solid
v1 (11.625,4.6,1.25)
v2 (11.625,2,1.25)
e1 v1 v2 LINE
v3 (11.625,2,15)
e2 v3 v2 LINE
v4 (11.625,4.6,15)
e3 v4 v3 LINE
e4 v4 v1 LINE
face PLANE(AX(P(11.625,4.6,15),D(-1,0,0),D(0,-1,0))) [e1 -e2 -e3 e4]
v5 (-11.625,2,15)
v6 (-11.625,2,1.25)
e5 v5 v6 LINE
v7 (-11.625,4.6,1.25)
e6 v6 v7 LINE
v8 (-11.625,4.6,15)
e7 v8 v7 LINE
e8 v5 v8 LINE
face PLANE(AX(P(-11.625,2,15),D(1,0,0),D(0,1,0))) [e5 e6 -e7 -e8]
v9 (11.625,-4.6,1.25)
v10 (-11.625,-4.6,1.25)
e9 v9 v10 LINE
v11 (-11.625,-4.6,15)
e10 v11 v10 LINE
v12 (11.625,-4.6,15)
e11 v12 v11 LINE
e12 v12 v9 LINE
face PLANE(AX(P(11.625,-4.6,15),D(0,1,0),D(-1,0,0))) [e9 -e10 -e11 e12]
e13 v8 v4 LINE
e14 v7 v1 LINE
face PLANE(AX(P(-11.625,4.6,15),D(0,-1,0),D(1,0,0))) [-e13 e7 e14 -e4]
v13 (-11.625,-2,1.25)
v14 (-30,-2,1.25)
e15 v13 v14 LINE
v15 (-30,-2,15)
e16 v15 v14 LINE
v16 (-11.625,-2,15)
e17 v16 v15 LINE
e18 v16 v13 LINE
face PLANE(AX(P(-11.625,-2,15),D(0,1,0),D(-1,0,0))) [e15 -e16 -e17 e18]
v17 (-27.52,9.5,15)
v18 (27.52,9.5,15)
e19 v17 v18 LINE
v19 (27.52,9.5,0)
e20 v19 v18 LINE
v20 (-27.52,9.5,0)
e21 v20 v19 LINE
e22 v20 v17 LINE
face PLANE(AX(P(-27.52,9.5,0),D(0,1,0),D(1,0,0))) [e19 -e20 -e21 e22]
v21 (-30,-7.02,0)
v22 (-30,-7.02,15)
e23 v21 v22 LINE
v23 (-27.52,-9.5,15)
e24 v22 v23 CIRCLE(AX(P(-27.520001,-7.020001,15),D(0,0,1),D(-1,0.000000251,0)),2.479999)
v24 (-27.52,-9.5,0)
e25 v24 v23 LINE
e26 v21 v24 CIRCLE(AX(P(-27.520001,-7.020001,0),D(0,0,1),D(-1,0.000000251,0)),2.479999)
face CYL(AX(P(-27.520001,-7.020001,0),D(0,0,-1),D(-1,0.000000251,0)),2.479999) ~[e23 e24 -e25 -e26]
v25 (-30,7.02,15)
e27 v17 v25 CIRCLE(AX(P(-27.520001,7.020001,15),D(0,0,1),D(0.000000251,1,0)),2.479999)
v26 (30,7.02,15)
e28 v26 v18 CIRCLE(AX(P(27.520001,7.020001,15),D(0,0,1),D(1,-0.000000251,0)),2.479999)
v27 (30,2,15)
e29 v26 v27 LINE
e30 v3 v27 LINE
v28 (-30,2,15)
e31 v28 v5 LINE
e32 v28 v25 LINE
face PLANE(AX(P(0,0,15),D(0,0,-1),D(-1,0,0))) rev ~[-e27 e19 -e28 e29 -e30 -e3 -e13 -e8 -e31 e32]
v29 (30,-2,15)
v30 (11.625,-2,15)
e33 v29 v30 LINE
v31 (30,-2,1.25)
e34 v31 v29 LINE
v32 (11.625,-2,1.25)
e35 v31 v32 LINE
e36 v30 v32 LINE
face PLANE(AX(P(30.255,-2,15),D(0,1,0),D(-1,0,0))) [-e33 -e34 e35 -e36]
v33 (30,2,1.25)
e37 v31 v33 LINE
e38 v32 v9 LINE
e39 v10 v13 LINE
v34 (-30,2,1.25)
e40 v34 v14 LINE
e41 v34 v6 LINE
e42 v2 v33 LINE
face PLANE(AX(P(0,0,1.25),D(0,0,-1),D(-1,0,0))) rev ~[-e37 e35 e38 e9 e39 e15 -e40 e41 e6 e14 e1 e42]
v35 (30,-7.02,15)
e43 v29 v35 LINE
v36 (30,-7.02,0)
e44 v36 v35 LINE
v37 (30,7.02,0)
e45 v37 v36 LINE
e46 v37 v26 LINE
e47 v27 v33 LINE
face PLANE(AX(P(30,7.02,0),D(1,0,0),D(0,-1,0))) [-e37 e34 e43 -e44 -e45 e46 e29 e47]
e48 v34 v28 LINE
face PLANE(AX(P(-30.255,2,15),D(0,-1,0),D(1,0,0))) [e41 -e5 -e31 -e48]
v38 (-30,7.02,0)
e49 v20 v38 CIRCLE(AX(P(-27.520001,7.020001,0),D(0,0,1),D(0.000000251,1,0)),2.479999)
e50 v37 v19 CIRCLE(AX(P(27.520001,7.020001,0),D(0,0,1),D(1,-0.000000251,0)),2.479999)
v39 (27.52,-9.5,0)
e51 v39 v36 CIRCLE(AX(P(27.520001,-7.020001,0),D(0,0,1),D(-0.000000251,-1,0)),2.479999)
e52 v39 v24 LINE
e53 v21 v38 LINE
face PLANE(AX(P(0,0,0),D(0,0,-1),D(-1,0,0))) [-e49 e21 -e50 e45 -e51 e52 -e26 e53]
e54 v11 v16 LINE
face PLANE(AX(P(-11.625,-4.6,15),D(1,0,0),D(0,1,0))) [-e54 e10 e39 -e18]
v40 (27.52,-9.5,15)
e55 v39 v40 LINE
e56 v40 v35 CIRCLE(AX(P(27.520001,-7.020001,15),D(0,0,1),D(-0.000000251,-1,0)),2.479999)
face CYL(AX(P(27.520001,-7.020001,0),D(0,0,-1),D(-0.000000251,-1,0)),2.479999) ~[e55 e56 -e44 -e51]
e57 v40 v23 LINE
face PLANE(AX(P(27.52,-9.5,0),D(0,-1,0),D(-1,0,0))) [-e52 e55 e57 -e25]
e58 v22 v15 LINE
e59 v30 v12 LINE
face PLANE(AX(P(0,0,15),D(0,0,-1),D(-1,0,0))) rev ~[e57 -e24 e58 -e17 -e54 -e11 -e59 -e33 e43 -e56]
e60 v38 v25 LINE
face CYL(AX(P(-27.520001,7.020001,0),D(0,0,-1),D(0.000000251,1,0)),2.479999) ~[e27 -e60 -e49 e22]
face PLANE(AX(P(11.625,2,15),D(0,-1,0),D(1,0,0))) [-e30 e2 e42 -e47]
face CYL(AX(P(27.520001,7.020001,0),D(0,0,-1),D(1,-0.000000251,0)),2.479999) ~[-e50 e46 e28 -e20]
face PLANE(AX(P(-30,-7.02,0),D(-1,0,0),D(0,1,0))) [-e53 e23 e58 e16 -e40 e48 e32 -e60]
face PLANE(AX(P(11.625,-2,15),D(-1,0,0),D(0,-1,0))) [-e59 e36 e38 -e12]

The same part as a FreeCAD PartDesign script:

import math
import FreeCAD as App
import Part
import Sketcher
Q = App.Units.Quantity

doc = App.newDocument("Part")
params = doc.addObject("Spreadsheet::Sheet", "Params")
for row, (alias, value) in enumerate([
    ("sketch1_radius", "2.479999 mm"),
    ("pad1_length", "15 mm"),
    ("sketch2_height", "4 mm"),
    ("sketch2_height2", "2.6 mm"),
    ("sketch2_width", "18.63 mm"),
    ("sketch2_width2", "23.25 mm"),
    ("pocket1_length", "13.75 mm"),
], start=1):
    params.set(f"A{row}", alias)
    params.set(f"B{row}", "=" + value)
    params.setAlias(f"B{row}", alias)

body = doc.addObject("PartDesign::Body", "Body")

sketch1 = body.newObject("Sketcher::SketchObject", "Sketch")
sketch1.AttachmentSupport = (doc.getObject("XY_Plane"), [""])
sketch1.MapMode = "FlatFace"
sketch1.addGeometry(Part.LineSegment(App.Vector(27.5, 9.5, 0), App.Vector(-27.5, 9.5, 0)), False)
sketch1.addGeometry(Part.ArcOfCircle(Part.Circle(App.Vector(-27.5, 7, 0), App.Vector(0, 0, 1), 2.5), math.radians(90), math.radians(180)), False)
sketch1.addGeometry(Part.LineSegment(App.Vector(-30, 7, 0), App.Vector(-30, -7, 0)), False)
sketch1.addGeometry(Part.ArcOfCircle(Part.Circle(App.Vector(-27.5, -7, 0), App.Vector(0, 0, 1), 2.5), math.radians(180), math.radians(270)), False)
sketch1.addGeometry(Part.LineSegment(App.Vector(-27.5, -9.5, 0), App.Vector(27.5, -9.5, 0)), False)
sketch1.addGeometry(Part.ArcOfCircle(Part.Circle(App.Vector(27.5, -7, 0), App.Vector(0, 0, 1), 2.5), math.radians(-90), math.radians(0)), False)
sketch1.addGeometry(Part.LineSegment(App.Vector(30, -7, 0), App.Vector(30, 7, 0)), False)
sketch1.addGeometry(Part.ArcOfCircle(Part.Circle(App.Vector(27.5, 7, 0), App.Vector(0, 0, 1), 2.5), math.radians(0), math.radians(90)), False)
sketch1.addConstraint(Sketcher.Constraint("Tangent", 0, 2, 1, 1))
sketch1.addConstraint(Sketcher.Constraint("Tangent", 1, 2, 2, 1))
sketch1.addConstraint(Sketcher.Constraint("Tangent", 2, 2, 3, 1))
sketch1.addConstraint(Sketcher.Constraint("Tangent", 3, 2, 4, 1))
sketch1.addConstraint(Sketcher.Constraint("Tangent", 4, 2, 5, 1))
sketch1.addConstraint(Sketcher.Constraint("Tangent", 5, 2, 6, 1))
sketch1.addConstraint(Sketcher.Constraint("Tangent", 6, 2, 7, 1))
sketch1.addConstraint(Sketcher.Constraint("Tangent", 7, 2, 0, 1))
sketch1.addConstraint(Sketcher.Constraint("Horizontal", 0))
sketch1.addConstraint(Sketcher.Constraint("Vertical", 2))
sketch1.addConstraint(Sketcher.Constraint("Horizontal", 4))
sketch1.addConstraint(Sketcher.Constraint("Vertical", 6))
sketch1.addConstraint(Sketcher.Constraint("Equal", 1, 3))
sketch1.addConstraint(Sketcher.Constraint("Equal", 3, 5))
sketch1.addConstraint(Sketcher.Constraint("Equal", 5, 7))
sketch1.addConstraint(Sketcher.Constraint("Symmetric", 1, 3, 5, 3, -1, 1))
sketch1.addConstraint(Sketcher.Constraint("Radius", 1, Q("2.479999 mm")))
sketch1.addConstraint(Sketcher.Constraint("DistanceX", 1, 2, -1, 1, Q("30 mm")))
sketch1.addConstraint(Sketcher.Constraint("DistanceY", 3, 2, 0, 2, Q("19 mm")))
sketch1.setExpression("Constraints[16]", "Params.sketch1_radius")
pad1 = body.newObject("PartDesign::Pad", "Pad")
pad1.Profile = sketch1
pad1.setExpression("Length", "Params.pad1_length")

sketch2 = body.newObject("Sketcher::SketchObject", "Sketch001")
sketch2.AttachmentSupport = (doc.getObject("XY_Plane"), [""])
sketch2.MapMode = "FlatFace"
sketch2.AttachmentOffset = App.Placement(App.Vector(0, 0, 15), App.Rotation())
sketch2.addGeometry(Part.LineSegment(App.Vector(-11.6, 2, 0), App.Vector(-30.3, 2, 0)), False)
sketch2.addGeometry(Part.LineSegment(App.Vector(-30.3, 2, 0), App.Vector(-30.3, -2, 0)), False)
sketch2.addGeometry(Part.LineSegment(App.Vector(-30.3, -2, 0), App.Vector(-11.6, -2, 0)), False)
sketch2.addGeometry(Part.LineSegment(App.Vector(-11.6, -2, 0), App.Vector(-11.6, -4.6, 0)), False)
sketch2.addGeometry(Part.LineSegment(App.Vector(-11.6, -4.6, 0), App.Vector(11.6, -4.6, 0)), False)
sketch2.addGeometry(Part.LineSegment(App.Vector(11.6, -4.6, 0), App.Vector(11.6, -2, 0)), False)
sketch2.addGeometry(Part.LineSegment(App.Vector(11.6, -2, 0), App.Vector(30.3, -2, 0)), False)
sketch2.addGeometry(Part.LineSegment(App.Vector(30.3, -2, 0), App.Vector(30.3, 2, 0)), False)
sketch2.addGeometry(Part.LineSegment(App.Vector(30.3, 2, 0), App.Vector(11.6, 2, 0)), False)
sketch2.addGeometry(Part.LineSegment(App.Vector(11.6, 2, 0), App.Vector(11.6, 4.6, 0)), False)
sketch2.addGeometry(Part.LineSegment(App.Vector(11.6, 4.6, 0), App.Vector(-11.6, 4.6, 0)), False)
sketch2.addGeometry(Part.LineSegment(App.Vector(-11.6, 4.6, 0), App.Vector(-11.6, 2, 0)), False)
sketch2.addConstraint(Sketcher.Constraint("Coincident", 0, 2, 1, 1))
sketch2.addConstraint(Sketcher.Constraint("Coincident", 1, 2, 2, 1))
sketch2.addConstraint(Sketcher.Constraint("Coincident", 2, 2, 3, 1))
sketch2.addConstraint(Sketcher.Constraint("Coincident", 3, 2, 4, 1))
sketch2.addConstraint(Sketcher.Constraint("Coincident", 4, 2, 5, 1))
sketch2.addConstraint(Sketcher.Constraint("Coincident", 5, 2, 6, 1))
sketch2.addConstraint(Sketcher.Constraint("Coincident", 6, 2, 7, 1))
sketch2.addConstraint(Sketcher.Constraint("Coincident", 7, 2, 8, 1))
sketch2.addConstraint(Sketcher.Constraint("Coincident", 8, 2, 9, 1))
sketch2.addConstraint(Sketcher.Constraint("Coincident", 9, 2, 10, 1))
sketch2.addConstraint(Sketcher.Constraint("Coincident", 10, 2, 11, 1))
sketch2.addConstraint(Sketcher.Constraint("Coincident", 11, 2, 0, 1))
sketch2.addConstraint(Sketcher.Constraint("Horizontal", 0))
sketch2.addConstraint(Sketcher.Constraint("Vertical", 1))
sketch2.addConstraint(Sketcher.Constraint("Horizontal", 2))
sketch2.addConstraint(Sketcher.Constraint("Vertical", 3))
sketch2.addConstraint(Sketcher.Constraint("Horizontal", 4))
sketch2.addConstraint(Sketcher.Constraint("Vertical", 5))
sketch2.addConstraint(Sketcher.Constraint("Horizontal", 6))
sketch2.addConstraint(Sketcher.Constraint("Vertical", 7))
sketch2.addConstraint(Sketcher.Constraint("Horizontal", 8))
sketch2.addConstraint(Sketcher.Constraint("Vertical", 9))
sketch2.addConstraint(Sketcher.Constraint("Horizontal", 10))
sketch2.addConstraint(Sketcher.Constraint("Vertical", 11))
sketch2.addConstraint(Sketcher.Constraint("Symmetric", 0, 2, 6, 2, -1, 1))
sketch2.addConstraint(Sketcher.Constraint("Symmetric", 2, 2, 8, 2, -1, 1))
sketch2.addConstraint(Sketcher.Constraint("Symmetric", 4, 2, 10, 2, -1, 1))
sketch2.addConstraint(Sketcher.Constraint("Symmetric", 2, 2, 5, 2, -2))
sketch2.addConstraint(Sketcher.Constraint("DistanceY", 1, 2, 1, 1, Q("4 mm")))
sketch2.addConstraint(Sketcher.Constraint("DistanceY", 3, 2, 3, 1, Q("2.6 mm")))
sketch2.addConstraint(Sketcher.Constraint("DistanceX", 0, 2, 0, 1, Q("18.63 mm")))
sketch2.addConstraint(Sketcher.Constraint("DistanceX", 4, 1, 4, 2, Q("23.25 mm")))
sketch2.setExpression("Constraints[28]", "Params.sketch2_height")
sketch2.setExpression("Constraints[29]", "Params.sketch2_height2")
sketch2.setExpression("Constraints[30]", "Params.sketch2_width")
sketch2.setExpression("Constraints[31]", "Params.sketch2_width2")
pocket1 = body.newObject("PartDesign::Pocket", "Pocket")
pocket1.Profile = sketch2
pocket1.setExpression("Length", "Params.pocket1_length")

doc.recompute()
